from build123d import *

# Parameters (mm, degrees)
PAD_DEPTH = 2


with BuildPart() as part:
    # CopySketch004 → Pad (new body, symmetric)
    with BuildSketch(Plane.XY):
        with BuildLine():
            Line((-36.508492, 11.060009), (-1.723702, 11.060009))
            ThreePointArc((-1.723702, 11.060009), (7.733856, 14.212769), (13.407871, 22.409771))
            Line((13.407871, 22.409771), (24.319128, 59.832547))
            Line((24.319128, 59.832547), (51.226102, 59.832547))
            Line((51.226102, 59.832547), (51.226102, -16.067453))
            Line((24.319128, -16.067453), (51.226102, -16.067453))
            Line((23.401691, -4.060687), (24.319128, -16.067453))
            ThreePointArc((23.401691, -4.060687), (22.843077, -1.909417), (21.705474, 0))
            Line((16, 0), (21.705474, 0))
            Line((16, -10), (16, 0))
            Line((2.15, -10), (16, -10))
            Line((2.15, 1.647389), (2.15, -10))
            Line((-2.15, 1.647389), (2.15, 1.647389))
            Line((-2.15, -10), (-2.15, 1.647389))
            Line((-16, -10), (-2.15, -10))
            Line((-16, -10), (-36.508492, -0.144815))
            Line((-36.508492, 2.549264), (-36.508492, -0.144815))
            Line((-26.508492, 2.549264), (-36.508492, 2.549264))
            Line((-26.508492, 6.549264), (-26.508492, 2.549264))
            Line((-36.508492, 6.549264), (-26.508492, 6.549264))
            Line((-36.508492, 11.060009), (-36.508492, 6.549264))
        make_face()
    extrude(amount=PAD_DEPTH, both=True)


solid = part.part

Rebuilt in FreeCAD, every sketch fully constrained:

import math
import FreeCAD as App
import Part
import Sketcher

V = App.Vector
Q = App.Units.Quantity

doc = App.newDocument("Part")
body = doc.addObject("PartDesign::Body", "Body")

sketch1 = body.newObject("Sketcher::SketchObject", "Sketch")
sketch1.AttachmentSupport = (doc.getObject("XY_Plane"), [""])
sketch1.MapMode = "FlatFace"
sketch1.addGeometry([
    Part.LineSegment(V(-1.723702, 11.060009, 0), V(-36.508492, 11.060009, 0)),
    Part.LineSegment(V(-36.508492, 11.060009, 0), V(-36.508492, 6.549264, 0)),
    Part.LineSegment(V(-36.508492, 6.549264, 0), V(-26.508492, 6.549264, 0)),
    Part.LineSegment(V(-26.508492, 6.549264, 0), V(-26.508492, 2.549264, 0)),
    Part.LineSegment(V(-26.508492, 2.549264, 0), V(-36.508492, 2.549264, 0)),
    Part.LineSegment(V(-36.508492, 2.549264, 0), V(-36.508492, -0.144815, 0)),
    Part.LineSegment(V(-36.508492, -0.144815, 0), V(-16, -10, 0)),
    Part.LineSegment(V(-16, -10, 0), V(-2.15, -10, 0)),
    Part.LineSegment(V(-2.15, -10, 0), V(-2.15, 1.647389, 0)),
    Part.LineSegment(V(-2.15, 1.647389, 0), V(2.15, 1.647389, 0)),
    Part.LineSegment(V(2.15, 1.647389, 0), V(2.15, -10, 0)),
    Part.LineSegment(V(2.15, -10, 0), V(16, -10, 0)),
    Part.LineSegment(V(16, -10, 0), V(16, 0, 0)),
    Part.LineSegment(V(16, 0, 0), V(21.705474, 0, 0)),
    Part.ArcOfCircle(Part.Circle(V(15.578513, -4.943947, 0), V(0, 0, 1), 7.872882), math.radians(6.441585), math.radians(38.900637)),
    Part.LineSegment(V(23.401691, -4.060687, 0), V(24.319128, -16.067453, 0)),
    Part.LineSegment(V(24.319128, -16.067453, 0), V(51.226102, -16.067453, 0)),
    Part.LineSegment(V(51.226102, -16.067453, 0), V(51.226102, 59.832547, 0)),
    Part.LineSegment(V(51.226102, 59.832547, 0), V(24.319128, 59.832547, 0)),
    Part.LineSegment(V(24.319128, 59.832547, 0), V(13.407871, 22.409771, 0)),
    Part.ArcOfCircle(Part.Circle(V(-1.723702, 26.821644, 0), V(0, 0, 1), 15.761635), math.radians(-89.999999), math.radians(-16.25496)),
], False)
sketch1.addConstraint([
    Sketcher.Constraint("Coincident", 0, 2, 1, 1),
    Sketcher.Constraint("Coincident", 1, 2, 2, 1),
    Sketcher.Constraint("Coincident", 2, 2, 3, 1),
    Sketcher.Constraint("Coincident", 3, 2, 4, 1),
    Sketcher.Constraint("Coincident", 4, 2, 5, 1),
    Sketcher.Constraint("Coincident", 5, 2, 6, 1),
    Sketcher.Constraint("Coincident", 6, 2, 7, 1),
    Sketcher.Constraint("Coincident", 7, 2, 8, 1),
    Sketcher.Constraint("Coincident", 8, 2, 9, 1),
    Sketcher.Constraint("Coincident", 9, 2, 10, 1),
    Sketcher.Constraint("Coincident", 10, 2, 11, 1),
    Sketcher.Constraint("Coincident", 11, 2, 12, 1),
    Sketcher.Constraint("Coincident", 12, 2, 13, 1),
    Sketcher.Constraint("Coincident", 13, 2, 14, 2),
    Sketcher.Constraint("Coincident", 14, 1, 15, 1),
    Sketcher.Constraint("Coincident", 15, 2, 16, 1),
    Sketcher.Constraint("Coincident", 16, 2, 17, 1),
    Sketcher.Constraint("Coincident", 17, 2, 18, 1),
    Sketcher.Constraint("Coincident", 18, 2, 19, 1),
    Sketcher.Constraint("Tangent", 19, 2, 20, 2),
    Sketcher.Constraint("Tangent", 20, 1, 0, 1),
    Sketcher.Constraint("Horizontal", 0),
    Sketcher.Constraint("Vertical", 1),
    Sketcher.Constraint("Horizontal", 2),
    Sketcher.Constraint("Vertical", 3),
    Sketcher.Constraint("Horizontal", 4),
    Sketcher.Constraint("Vertical", 5),
    Sketcher.Constraint("Horizontal", 7),
    Sketcher.Constraint("Vertical", 8),
    Sketcher.Constraint("Horizontal", 9),
    Sketcher.Constraint("Vertical", 10),
    Sketcher.Constraint("Horizontal", 11),
    Sketcher.Constraint("Vertical", 12),
    Sketcher.Constraint("Horizontal", 13),
    Sketcher.Constraint("Horizontal", 16),
    Sketcher.Constraint("Vertical", 17),
    Sketcher.Constraint("Horizontal", 18),
    Sketcher.Constraint("Symmetric", 7, 2, 10, 2, -2),
    Sketcher.Constraint("PointOnObject", 12, 2, -1),
    Sketcher.Constraint("Vertical", 1, 2, 4, 2),
    Sketcher.Constraint("Vertical", 15, 2, 18, 2),
    Sketcher.Constraint("Equal", 7, 11),
    Sketcher.Constraint("Equal", 4, 12),
    Sketcher.Constraint("DistanceX", 2, 1, 2, 2, Q("10 mm")),
    Sketcher.Constraint("DistanceY", 3, 2, 3, 1, Q("4 mm")),
    Sketcher.Constraint("DistanceX", 9, 1, 9, 2, Q("4.3 mm")),
    Sketcher.Constraint("DistanceY", 17, 1, 17, 2, Q("75.9 mm")),
    Sketcher.Constraint("DistanceX", 6, 2, -1, 1, Q("16 mm")),
    Sketcher.Constraint("Radius", 14, Q("7.872882 mm")),
    Sketcher.Constraint("Radius", 20, Q("15.761635 mm")),
    Sketcher.Constraint("DistanceX", 0, 2, 0, 1, Q("34.78479 mm")),
    Sketcher.Constraint("DistanceY", 5, 2, 5, 1, Q("2.694079 mm")),
    Sketcher.Constraint("DistanceY", 8, 1, 8, 2, Q("11.647389 mm")),
    Sketcher.Constraint("DistanceX", -1, 1, 16, 2, Q("51.226102 mm")),
    Sketcher.Constraint("DistanceX", 20, 1, -1, 1, Q("1.723702 mm")),
    Sketcher.Constraint("DistanceX", 13, 1, 13, 2, Q("5.705474 mm")),
    Sketcher.Constraint("DistanceX", 16, 1, 16, 2, Q("26.906974 mm")),
    Sketcher.Constraint("DistanceY", 1, 2, 1, 1, Q("4.510745 mm")),
    Sketcher.Constraint("DistanceY", -1, 1, 0, 2, Q("11.060009 mm")),
    Sketcher.Constraint("DistanceX", -1, 1, 14, 1, Q("23.401691 mm")),
    Sketcher.Constraint("DistanceX", -1, 1, 19, 2, Q("13.407871 mm")),
    Sketcher.Constraint("DistanceY", 14, 3, 20, 3, Q("31.765591 mm")),
])
pad1 = body.newObject("PartDesign::Pad", "Pad")
pad1.Profile = sketch1
pad1.Length = 4
pad1.Midplane = True

doc.recompute()
